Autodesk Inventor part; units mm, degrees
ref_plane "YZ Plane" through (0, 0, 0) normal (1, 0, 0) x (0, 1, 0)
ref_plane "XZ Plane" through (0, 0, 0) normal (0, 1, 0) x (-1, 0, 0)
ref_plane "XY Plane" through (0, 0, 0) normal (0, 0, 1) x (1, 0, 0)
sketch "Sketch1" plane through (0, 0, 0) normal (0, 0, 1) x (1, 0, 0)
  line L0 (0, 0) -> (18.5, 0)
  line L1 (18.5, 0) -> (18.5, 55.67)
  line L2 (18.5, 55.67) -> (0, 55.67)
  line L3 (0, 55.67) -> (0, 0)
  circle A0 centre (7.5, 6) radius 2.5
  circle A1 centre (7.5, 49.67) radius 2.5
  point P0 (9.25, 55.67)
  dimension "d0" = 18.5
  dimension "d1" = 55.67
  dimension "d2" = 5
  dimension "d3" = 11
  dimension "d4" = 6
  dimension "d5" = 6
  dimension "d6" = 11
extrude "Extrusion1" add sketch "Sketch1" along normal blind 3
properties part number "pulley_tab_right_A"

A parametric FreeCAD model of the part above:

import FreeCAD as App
import Part
import Sketcher
from FreeCAD import Vector
Q = App.Units.Quantity

doc = App.newDocument("Part")
body = doc.addObject("PartDesign::Body", "Body")

# Sketch on XY plane
sketch1 = body.newObject("Sketcher::SketchObject", "Sketch")
sketch1.AttachmentSupport = (doc.getObject("XY_Plane"), [""])
sketch1.MapMode = "FlatFace"
sketch1.addGeometry([
    Part.LineSegment(Vector(0, 55.67, 0), Vector(0, 0, 0)),  # 0
    Part.LineSegment(Vector(0, 0, 0), Vector(18.5, 0, 0)),  # 1
    Part.LineSegment(Vector(18.5, 0, 0), Vector(18.5, 55.67, 0)),  # 2
    Part.LineSegment(Vector(18.5, 55.67, 0), Vector(0, 55.67, 0)),  # 3
    Part.Circle(Vector(7.5, 6, 0), Vector(0, 0, 1), 2.5),  # 4
    Part.Circle(Vector(7.5, 49.67, 0), Vector(0, 0, 1), 2.5),  # 5
], False)
sketch1.addConstraint([
    Sketcher.Constraint("Coincident", 0, 2, 1, 1),
    Sketcher.Constraint("Coincident", 1, 2, 2, 1),
    Sketcher.Constraint("Coincident", 2, 2, 3, 1),
    Sketcher.Constraint("Coincident", 3, 2, 0, 1),
    Sketcher.Constraint("Vertical", 0),
    Sketcher.Constraint("Horizontal", 1),
    Sketcher.Constraint("Vertical", 2),
    Sketcher.Constraint("Horizontal", 3),
    Sketcher.Constraint("Coincident", 0, 2, -1, 1),
    Sketcher.Constraint("Equal", 4, 5),
    Sketcher.Constraint("Vertical", 4, 3, 5, 3),
    Sketcher.Constraint("Diameter", 4, Q("5 mm")),
    Sketcher.Constraint("DistanceX", 1, 1, 1, 2, Q("18.5 mm")),
    Sketcher.Constraint("DistanceY", -1, 1, 4, 3, Q("6 mm")),
    Sketcher.Constraint("DistanceX", 4, 3, 1, 2, Q("11 mm")),
    Sketcher.Constraint("DistanceY", 5, 3, 2, 2, Q("6 mm")),
    Sketcher.Constraint("DistanceY", 0, 2, 0, 1, Q("55.67 mm")),
])
pad1 = body.newObject("PartDesign::Pad", "Pad")
pad1.Profile = sketch1
pad1.Length = 3

doc.recompute()
